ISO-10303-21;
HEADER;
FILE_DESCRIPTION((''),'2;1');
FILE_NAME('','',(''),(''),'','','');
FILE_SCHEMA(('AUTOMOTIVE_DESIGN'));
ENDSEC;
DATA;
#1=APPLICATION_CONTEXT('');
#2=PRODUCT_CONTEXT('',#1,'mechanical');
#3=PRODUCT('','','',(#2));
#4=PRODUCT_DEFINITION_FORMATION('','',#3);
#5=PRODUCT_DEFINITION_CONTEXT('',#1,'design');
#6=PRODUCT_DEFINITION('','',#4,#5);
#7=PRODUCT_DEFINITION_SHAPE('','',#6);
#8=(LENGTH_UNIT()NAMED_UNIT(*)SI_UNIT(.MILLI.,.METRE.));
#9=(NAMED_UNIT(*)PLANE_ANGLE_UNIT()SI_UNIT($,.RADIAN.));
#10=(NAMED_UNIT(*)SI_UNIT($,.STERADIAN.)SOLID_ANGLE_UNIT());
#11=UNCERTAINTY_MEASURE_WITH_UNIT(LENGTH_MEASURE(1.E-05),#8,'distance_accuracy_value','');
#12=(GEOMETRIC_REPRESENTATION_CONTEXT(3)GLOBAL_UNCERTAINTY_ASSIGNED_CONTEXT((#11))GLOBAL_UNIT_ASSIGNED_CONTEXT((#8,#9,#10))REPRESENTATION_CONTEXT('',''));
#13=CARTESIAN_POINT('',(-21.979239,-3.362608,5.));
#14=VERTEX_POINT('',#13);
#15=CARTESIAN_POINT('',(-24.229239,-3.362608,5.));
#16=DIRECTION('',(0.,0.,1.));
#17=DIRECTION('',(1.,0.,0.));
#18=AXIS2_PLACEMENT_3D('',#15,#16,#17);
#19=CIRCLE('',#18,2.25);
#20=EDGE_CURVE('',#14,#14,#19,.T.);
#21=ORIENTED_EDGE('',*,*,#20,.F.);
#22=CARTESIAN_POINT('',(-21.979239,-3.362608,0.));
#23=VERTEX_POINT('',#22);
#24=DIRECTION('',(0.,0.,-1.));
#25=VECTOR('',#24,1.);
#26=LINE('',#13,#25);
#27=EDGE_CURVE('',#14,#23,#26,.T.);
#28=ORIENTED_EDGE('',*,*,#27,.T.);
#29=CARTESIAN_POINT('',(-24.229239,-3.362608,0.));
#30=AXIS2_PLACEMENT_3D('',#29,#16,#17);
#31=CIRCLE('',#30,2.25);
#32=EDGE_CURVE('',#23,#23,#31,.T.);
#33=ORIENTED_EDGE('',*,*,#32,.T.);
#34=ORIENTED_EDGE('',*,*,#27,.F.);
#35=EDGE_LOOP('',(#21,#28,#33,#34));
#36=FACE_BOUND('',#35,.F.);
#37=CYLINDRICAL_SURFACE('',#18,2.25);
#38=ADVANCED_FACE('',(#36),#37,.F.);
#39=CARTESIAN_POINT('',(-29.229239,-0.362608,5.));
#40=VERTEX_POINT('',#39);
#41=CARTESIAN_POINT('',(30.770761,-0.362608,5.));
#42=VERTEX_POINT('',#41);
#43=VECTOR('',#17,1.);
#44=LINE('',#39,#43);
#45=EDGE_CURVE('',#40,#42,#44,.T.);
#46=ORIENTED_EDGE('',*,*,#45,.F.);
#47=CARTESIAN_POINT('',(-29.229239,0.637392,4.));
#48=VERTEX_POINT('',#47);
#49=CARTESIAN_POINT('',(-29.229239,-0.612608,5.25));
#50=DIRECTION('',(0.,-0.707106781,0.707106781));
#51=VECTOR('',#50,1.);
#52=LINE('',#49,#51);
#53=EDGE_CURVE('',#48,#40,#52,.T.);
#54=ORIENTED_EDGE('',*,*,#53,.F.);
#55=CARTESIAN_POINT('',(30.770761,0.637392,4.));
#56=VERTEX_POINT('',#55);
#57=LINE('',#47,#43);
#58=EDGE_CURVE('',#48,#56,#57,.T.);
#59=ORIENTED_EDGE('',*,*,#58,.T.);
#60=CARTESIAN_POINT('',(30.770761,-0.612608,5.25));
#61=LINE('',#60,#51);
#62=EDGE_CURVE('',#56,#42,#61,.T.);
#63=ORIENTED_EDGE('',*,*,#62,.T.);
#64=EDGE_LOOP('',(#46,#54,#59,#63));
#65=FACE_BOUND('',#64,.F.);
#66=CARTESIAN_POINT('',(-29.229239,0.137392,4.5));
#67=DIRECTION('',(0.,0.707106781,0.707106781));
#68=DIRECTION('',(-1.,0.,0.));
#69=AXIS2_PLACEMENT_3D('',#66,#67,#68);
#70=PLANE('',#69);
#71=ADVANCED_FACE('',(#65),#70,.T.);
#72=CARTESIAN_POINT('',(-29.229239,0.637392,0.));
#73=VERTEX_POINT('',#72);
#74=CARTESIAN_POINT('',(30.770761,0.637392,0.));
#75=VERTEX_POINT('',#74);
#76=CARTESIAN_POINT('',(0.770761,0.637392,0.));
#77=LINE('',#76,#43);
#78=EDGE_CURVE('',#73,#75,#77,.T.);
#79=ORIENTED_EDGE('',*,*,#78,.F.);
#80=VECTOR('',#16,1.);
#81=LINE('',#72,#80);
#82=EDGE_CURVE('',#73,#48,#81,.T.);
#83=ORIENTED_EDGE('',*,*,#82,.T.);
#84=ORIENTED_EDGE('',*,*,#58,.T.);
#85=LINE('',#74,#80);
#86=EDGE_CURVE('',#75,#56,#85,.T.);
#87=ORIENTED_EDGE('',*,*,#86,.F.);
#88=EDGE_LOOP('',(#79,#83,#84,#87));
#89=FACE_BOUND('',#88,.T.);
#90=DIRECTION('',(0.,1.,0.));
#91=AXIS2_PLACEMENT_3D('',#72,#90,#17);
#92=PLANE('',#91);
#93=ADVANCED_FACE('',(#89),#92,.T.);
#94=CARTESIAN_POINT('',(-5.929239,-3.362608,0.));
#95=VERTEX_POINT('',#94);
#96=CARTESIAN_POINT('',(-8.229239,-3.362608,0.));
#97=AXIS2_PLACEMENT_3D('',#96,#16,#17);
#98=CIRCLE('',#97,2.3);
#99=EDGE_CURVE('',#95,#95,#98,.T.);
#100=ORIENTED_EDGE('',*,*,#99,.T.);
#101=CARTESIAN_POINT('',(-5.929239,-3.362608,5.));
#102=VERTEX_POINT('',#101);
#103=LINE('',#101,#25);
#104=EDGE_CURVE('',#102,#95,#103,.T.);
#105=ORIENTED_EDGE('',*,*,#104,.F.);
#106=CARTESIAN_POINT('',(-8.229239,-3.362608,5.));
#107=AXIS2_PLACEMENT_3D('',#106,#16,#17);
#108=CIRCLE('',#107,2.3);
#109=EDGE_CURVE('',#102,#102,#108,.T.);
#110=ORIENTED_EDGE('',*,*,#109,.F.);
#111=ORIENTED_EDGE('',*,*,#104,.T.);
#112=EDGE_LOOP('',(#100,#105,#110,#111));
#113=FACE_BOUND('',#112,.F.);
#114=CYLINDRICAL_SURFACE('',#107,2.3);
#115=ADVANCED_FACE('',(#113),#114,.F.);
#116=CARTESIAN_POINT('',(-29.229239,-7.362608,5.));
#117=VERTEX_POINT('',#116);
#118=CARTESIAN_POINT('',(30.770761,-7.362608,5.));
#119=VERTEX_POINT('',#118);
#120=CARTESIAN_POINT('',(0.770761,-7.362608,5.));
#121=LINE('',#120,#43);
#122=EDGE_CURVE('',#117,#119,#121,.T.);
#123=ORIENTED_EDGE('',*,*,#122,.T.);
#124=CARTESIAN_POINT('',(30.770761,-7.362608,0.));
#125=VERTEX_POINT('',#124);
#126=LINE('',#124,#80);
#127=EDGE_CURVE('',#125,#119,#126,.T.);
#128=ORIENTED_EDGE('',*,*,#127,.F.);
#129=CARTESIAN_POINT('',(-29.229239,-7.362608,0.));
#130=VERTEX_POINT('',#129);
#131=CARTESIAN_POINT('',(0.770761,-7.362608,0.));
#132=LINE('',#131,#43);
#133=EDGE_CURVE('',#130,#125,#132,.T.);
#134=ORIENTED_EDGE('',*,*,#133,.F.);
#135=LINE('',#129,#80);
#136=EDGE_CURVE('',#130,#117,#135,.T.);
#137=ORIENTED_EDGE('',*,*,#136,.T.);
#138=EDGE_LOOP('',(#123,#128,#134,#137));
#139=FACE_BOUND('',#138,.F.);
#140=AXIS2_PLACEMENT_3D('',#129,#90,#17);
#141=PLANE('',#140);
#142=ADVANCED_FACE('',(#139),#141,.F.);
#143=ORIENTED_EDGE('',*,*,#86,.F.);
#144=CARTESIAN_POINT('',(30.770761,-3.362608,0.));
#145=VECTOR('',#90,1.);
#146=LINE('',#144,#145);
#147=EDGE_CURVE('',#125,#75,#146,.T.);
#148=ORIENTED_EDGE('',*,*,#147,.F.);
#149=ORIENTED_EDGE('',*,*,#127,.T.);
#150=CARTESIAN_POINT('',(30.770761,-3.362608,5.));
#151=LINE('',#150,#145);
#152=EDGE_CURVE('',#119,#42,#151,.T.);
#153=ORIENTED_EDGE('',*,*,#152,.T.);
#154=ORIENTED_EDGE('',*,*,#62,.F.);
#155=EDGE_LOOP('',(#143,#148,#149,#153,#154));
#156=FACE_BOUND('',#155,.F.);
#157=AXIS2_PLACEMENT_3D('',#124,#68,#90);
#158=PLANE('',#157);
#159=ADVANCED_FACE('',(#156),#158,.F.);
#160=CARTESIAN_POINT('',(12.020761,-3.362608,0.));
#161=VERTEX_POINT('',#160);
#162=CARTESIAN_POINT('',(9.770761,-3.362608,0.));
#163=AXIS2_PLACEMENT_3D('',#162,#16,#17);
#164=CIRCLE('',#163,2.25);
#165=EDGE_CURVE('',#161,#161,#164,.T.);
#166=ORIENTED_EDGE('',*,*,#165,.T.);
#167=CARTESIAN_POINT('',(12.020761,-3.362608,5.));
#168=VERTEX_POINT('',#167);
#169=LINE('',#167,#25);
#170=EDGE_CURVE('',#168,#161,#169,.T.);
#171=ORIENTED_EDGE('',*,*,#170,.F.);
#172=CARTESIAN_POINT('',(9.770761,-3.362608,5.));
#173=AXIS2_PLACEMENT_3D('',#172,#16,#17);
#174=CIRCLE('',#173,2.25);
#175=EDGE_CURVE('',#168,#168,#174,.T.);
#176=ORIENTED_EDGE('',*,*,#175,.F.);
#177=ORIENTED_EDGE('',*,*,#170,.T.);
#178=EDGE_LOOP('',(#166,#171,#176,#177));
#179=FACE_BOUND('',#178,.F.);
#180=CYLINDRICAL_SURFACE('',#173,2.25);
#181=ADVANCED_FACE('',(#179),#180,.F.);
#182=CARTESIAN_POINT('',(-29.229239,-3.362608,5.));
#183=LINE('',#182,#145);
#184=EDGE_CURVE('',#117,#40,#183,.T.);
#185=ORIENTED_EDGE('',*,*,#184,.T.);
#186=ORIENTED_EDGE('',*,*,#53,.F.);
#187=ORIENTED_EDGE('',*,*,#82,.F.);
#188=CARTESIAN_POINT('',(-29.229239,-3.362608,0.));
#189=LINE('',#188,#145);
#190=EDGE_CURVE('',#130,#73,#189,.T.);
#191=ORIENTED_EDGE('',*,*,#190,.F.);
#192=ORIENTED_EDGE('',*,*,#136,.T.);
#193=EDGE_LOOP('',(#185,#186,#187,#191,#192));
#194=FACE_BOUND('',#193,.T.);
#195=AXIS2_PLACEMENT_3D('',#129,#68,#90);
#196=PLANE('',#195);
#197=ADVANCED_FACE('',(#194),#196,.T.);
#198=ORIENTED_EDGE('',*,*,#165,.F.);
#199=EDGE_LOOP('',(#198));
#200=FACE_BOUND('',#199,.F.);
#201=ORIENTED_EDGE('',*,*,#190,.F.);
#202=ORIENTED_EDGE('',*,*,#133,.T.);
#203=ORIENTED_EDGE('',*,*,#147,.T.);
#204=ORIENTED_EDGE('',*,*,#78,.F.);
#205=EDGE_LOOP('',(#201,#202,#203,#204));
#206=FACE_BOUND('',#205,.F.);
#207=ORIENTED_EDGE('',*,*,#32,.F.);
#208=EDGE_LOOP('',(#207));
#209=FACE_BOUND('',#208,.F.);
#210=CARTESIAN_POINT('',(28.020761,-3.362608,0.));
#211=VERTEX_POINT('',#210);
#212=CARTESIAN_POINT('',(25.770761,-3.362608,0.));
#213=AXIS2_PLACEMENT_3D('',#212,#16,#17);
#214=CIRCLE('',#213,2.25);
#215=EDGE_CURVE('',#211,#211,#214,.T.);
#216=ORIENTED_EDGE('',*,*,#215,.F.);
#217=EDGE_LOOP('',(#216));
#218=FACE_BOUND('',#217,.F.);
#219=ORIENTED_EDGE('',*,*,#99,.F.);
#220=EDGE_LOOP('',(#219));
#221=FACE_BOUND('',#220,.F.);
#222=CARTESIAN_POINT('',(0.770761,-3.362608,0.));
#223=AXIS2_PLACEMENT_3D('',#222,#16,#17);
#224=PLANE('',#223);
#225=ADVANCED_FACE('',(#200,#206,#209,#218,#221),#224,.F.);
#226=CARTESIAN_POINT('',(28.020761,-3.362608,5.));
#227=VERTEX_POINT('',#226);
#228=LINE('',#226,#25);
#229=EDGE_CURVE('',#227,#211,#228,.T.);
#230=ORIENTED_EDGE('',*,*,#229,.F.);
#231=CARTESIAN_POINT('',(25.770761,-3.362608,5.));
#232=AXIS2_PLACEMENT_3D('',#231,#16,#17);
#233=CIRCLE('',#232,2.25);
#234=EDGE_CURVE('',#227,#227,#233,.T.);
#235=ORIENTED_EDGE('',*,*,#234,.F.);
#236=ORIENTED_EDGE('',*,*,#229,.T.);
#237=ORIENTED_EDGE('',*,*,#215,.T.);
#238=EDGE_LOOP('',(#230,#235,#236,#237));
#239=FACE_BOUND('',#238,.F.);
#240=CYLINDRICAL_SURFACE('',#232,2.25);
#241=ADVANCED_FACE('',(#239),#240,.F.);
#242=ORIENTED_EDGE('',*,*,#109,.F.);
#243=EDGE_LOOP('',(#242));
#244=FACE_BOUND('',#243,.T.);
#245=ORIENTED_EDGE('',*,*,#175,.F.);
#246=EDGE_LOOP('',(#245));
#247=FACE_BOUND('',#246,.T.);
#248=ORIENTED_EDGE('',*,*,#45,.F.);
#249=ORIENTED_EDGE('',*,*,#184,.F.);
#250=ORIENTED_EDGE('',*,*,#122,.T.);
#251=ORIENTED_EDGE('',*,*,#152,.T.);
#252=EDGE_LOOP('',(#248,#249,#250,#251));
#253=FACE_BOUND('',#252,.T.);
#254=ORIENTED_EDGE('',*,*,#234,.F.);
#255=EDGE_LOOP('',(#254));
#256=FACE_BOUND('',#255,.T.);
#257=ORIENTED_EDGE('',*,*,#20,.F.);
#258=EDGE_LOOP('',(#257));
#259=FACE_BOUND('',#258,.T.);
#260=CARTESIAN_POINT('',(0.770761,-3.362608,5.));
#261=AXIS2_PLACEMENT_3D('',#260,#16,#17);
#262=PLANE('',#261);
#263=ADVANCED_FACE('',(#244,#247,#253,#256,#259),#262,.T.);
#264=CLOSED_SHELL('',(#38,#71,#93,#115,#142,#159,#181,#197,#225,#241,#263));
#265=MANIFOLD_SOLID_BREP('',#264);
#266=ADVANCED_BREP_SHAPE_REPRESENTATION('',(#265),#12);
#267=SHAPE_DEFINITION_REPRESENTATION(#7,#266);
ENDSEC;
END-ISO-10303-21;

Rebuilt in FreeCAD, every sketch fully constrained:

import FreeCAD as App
import Part
import Sketcher
from FreeCAD import Vector
Q = App.Units.Quantity


def edges_at(feature, points):
    """Names of the edges that pass closest to the given points."""
    edges = feature.Shape.Edges
    near = lambda p: min(range(len(edges)), key=lambda i: edges[i].distToShape(Part.Vertex(*p))[0])
    return sorted({f"Edge{near(p) + 1}" for p in points})

doc = App.newDocument("Part")
body = doc.addObject("PartDesign::Body", "Body")

# Sketch on XY plane
sketch1 = body.newObject("Sketcher::SketchObject", "Sketch")
sketch1.AttachmentSupport = (doc.getObject("XY_Plane"), [""])
sketch1.MapMode = "FlatFace"
sketch1.addGeometry([
    Part.LineSegment(Vector(-29, 1, 0), Vector(-29, -7, 0)),
    Part.LineSegment(Vector(-29, -7, 0), Vector(31, -7, 0)),
    Part.LineSegment(Vector(31, -7, 0), Vector(31, 1, 0)),
    Part.LineSegment(Vector(31, 1, 0), Vector(-29, 1, 0)),
], False)
sketch1.addConstraint([
    Sketcher.Constraint("Coincident", 0, 2, 1, 1),
    Sketcher.Constraint("Coincident", 1, 2, 2, 1),
    Sketcher.Constraint("Coincident", 2, 2, 3, 1),
    Sketcher.Constraint("Coincident", 3, 2, 0, 1),
    Sketcher.Constraint("Vertical", 0),
    Sketcher.Constraint("Horizontal", 1),
    Sketcher.Constraint("Vertical", 2),
    Sketcher.Constraint("Horizontal", 3),
    Sketcher.Constraint("DistanceX", 1, 1, 1, 2, Q("60 mm")),
    Sketcher.Constraint("DistanceY", 0, 2, 0, 1, Q("8 mm")),
    Sketcher.Constraint("DistanceX", 0, 2, -1, 1, Q("29.229239 mm")),
    Sketcher.Constraint("DistanceY", -1, 1, 2, 2, Q("0.637392 mm")),
])
pad1 = body.newObject("PartDesign::Pad", "Pad")
pad1.Profile = sketch1
pad1.Length = 5

# Sketch on XY plane
sketch2 = body.newObject("Sketcher::SketchObject", "Sketch001")
sketch2.AttachmentSupport = (doc.getObject("XY_Plane"), [""])
sketch2.MapMode = "FlatFace"
sketch2.AttachmentOffset = App.Placement(Vector(0, 0, 5), App.Rotation())
sketch2.addGeometry([
    Part.Circle(Vector(-8.2, -3.4, 0), Vector(0, 0, 1), 2.3),
    Part.Circle(Vector(9.8, -3.4, 0), Vector(0, 0, 1), 2.2),
    Part.Circle(Vector(25.8, -3.4, 0), Vector(0, 0, 1), 2.2),
    Part.Circle(Vector(-24.2, -3.4, 0), Vector(0, 0, 1), 2.2),
], False)
sketch2.addConstraint([
    Sketcher.Constraint("Equal", 1, 2),
    Sketcher.Constraint("Equal", 2, 3),
    Sketcher.Constraint("Horizontal", 0, 3, 1, 3),
    Sketcher.Constraint("Horizontal", 1, 3, 2, 3),
    Sketcher.Constraint("Horizontal", 2, 3, 3, 3),
    Sketcher.Constraint("Diameter", 0, Q("4.6 mm")),
    Sketcher.Constraint("Diameter", 1, Q("4.5 mm")),
    Sketcher.Constraint("DistanceX", 0, 3, 1, 3, Q("18 mm")),
    Sketcher.Constraint("DistanceX", 1, 3, 2, 3, Q("16 mm")),
    Sketcher.Constraint("DistanceX", 3, 3, 0, 3, Q("16 mm")),
    Sketcher.Constraint("DistanceX", 0, 3, -1, 1, Q("8.229239 mm")),
    Sketcher.Constraint("DistanceY", 0, 3, -1, 1, Q("3.362608 mm")),
])
pocket1 = body.newObject("PartDesign::Pocket", "Pocket")
pocket1.Profile = sketch2
pocket1.Type = "ThroughAll"
doc.recompute()

chamfer = body.newObject("PartDesign::Chamfer", "Chamfer")
chamfer.Base = (pocket1, edges_at(pocket1, [(0.771, 0.637, 5)]))
chamfer.Size = 1

doc.recompute()
